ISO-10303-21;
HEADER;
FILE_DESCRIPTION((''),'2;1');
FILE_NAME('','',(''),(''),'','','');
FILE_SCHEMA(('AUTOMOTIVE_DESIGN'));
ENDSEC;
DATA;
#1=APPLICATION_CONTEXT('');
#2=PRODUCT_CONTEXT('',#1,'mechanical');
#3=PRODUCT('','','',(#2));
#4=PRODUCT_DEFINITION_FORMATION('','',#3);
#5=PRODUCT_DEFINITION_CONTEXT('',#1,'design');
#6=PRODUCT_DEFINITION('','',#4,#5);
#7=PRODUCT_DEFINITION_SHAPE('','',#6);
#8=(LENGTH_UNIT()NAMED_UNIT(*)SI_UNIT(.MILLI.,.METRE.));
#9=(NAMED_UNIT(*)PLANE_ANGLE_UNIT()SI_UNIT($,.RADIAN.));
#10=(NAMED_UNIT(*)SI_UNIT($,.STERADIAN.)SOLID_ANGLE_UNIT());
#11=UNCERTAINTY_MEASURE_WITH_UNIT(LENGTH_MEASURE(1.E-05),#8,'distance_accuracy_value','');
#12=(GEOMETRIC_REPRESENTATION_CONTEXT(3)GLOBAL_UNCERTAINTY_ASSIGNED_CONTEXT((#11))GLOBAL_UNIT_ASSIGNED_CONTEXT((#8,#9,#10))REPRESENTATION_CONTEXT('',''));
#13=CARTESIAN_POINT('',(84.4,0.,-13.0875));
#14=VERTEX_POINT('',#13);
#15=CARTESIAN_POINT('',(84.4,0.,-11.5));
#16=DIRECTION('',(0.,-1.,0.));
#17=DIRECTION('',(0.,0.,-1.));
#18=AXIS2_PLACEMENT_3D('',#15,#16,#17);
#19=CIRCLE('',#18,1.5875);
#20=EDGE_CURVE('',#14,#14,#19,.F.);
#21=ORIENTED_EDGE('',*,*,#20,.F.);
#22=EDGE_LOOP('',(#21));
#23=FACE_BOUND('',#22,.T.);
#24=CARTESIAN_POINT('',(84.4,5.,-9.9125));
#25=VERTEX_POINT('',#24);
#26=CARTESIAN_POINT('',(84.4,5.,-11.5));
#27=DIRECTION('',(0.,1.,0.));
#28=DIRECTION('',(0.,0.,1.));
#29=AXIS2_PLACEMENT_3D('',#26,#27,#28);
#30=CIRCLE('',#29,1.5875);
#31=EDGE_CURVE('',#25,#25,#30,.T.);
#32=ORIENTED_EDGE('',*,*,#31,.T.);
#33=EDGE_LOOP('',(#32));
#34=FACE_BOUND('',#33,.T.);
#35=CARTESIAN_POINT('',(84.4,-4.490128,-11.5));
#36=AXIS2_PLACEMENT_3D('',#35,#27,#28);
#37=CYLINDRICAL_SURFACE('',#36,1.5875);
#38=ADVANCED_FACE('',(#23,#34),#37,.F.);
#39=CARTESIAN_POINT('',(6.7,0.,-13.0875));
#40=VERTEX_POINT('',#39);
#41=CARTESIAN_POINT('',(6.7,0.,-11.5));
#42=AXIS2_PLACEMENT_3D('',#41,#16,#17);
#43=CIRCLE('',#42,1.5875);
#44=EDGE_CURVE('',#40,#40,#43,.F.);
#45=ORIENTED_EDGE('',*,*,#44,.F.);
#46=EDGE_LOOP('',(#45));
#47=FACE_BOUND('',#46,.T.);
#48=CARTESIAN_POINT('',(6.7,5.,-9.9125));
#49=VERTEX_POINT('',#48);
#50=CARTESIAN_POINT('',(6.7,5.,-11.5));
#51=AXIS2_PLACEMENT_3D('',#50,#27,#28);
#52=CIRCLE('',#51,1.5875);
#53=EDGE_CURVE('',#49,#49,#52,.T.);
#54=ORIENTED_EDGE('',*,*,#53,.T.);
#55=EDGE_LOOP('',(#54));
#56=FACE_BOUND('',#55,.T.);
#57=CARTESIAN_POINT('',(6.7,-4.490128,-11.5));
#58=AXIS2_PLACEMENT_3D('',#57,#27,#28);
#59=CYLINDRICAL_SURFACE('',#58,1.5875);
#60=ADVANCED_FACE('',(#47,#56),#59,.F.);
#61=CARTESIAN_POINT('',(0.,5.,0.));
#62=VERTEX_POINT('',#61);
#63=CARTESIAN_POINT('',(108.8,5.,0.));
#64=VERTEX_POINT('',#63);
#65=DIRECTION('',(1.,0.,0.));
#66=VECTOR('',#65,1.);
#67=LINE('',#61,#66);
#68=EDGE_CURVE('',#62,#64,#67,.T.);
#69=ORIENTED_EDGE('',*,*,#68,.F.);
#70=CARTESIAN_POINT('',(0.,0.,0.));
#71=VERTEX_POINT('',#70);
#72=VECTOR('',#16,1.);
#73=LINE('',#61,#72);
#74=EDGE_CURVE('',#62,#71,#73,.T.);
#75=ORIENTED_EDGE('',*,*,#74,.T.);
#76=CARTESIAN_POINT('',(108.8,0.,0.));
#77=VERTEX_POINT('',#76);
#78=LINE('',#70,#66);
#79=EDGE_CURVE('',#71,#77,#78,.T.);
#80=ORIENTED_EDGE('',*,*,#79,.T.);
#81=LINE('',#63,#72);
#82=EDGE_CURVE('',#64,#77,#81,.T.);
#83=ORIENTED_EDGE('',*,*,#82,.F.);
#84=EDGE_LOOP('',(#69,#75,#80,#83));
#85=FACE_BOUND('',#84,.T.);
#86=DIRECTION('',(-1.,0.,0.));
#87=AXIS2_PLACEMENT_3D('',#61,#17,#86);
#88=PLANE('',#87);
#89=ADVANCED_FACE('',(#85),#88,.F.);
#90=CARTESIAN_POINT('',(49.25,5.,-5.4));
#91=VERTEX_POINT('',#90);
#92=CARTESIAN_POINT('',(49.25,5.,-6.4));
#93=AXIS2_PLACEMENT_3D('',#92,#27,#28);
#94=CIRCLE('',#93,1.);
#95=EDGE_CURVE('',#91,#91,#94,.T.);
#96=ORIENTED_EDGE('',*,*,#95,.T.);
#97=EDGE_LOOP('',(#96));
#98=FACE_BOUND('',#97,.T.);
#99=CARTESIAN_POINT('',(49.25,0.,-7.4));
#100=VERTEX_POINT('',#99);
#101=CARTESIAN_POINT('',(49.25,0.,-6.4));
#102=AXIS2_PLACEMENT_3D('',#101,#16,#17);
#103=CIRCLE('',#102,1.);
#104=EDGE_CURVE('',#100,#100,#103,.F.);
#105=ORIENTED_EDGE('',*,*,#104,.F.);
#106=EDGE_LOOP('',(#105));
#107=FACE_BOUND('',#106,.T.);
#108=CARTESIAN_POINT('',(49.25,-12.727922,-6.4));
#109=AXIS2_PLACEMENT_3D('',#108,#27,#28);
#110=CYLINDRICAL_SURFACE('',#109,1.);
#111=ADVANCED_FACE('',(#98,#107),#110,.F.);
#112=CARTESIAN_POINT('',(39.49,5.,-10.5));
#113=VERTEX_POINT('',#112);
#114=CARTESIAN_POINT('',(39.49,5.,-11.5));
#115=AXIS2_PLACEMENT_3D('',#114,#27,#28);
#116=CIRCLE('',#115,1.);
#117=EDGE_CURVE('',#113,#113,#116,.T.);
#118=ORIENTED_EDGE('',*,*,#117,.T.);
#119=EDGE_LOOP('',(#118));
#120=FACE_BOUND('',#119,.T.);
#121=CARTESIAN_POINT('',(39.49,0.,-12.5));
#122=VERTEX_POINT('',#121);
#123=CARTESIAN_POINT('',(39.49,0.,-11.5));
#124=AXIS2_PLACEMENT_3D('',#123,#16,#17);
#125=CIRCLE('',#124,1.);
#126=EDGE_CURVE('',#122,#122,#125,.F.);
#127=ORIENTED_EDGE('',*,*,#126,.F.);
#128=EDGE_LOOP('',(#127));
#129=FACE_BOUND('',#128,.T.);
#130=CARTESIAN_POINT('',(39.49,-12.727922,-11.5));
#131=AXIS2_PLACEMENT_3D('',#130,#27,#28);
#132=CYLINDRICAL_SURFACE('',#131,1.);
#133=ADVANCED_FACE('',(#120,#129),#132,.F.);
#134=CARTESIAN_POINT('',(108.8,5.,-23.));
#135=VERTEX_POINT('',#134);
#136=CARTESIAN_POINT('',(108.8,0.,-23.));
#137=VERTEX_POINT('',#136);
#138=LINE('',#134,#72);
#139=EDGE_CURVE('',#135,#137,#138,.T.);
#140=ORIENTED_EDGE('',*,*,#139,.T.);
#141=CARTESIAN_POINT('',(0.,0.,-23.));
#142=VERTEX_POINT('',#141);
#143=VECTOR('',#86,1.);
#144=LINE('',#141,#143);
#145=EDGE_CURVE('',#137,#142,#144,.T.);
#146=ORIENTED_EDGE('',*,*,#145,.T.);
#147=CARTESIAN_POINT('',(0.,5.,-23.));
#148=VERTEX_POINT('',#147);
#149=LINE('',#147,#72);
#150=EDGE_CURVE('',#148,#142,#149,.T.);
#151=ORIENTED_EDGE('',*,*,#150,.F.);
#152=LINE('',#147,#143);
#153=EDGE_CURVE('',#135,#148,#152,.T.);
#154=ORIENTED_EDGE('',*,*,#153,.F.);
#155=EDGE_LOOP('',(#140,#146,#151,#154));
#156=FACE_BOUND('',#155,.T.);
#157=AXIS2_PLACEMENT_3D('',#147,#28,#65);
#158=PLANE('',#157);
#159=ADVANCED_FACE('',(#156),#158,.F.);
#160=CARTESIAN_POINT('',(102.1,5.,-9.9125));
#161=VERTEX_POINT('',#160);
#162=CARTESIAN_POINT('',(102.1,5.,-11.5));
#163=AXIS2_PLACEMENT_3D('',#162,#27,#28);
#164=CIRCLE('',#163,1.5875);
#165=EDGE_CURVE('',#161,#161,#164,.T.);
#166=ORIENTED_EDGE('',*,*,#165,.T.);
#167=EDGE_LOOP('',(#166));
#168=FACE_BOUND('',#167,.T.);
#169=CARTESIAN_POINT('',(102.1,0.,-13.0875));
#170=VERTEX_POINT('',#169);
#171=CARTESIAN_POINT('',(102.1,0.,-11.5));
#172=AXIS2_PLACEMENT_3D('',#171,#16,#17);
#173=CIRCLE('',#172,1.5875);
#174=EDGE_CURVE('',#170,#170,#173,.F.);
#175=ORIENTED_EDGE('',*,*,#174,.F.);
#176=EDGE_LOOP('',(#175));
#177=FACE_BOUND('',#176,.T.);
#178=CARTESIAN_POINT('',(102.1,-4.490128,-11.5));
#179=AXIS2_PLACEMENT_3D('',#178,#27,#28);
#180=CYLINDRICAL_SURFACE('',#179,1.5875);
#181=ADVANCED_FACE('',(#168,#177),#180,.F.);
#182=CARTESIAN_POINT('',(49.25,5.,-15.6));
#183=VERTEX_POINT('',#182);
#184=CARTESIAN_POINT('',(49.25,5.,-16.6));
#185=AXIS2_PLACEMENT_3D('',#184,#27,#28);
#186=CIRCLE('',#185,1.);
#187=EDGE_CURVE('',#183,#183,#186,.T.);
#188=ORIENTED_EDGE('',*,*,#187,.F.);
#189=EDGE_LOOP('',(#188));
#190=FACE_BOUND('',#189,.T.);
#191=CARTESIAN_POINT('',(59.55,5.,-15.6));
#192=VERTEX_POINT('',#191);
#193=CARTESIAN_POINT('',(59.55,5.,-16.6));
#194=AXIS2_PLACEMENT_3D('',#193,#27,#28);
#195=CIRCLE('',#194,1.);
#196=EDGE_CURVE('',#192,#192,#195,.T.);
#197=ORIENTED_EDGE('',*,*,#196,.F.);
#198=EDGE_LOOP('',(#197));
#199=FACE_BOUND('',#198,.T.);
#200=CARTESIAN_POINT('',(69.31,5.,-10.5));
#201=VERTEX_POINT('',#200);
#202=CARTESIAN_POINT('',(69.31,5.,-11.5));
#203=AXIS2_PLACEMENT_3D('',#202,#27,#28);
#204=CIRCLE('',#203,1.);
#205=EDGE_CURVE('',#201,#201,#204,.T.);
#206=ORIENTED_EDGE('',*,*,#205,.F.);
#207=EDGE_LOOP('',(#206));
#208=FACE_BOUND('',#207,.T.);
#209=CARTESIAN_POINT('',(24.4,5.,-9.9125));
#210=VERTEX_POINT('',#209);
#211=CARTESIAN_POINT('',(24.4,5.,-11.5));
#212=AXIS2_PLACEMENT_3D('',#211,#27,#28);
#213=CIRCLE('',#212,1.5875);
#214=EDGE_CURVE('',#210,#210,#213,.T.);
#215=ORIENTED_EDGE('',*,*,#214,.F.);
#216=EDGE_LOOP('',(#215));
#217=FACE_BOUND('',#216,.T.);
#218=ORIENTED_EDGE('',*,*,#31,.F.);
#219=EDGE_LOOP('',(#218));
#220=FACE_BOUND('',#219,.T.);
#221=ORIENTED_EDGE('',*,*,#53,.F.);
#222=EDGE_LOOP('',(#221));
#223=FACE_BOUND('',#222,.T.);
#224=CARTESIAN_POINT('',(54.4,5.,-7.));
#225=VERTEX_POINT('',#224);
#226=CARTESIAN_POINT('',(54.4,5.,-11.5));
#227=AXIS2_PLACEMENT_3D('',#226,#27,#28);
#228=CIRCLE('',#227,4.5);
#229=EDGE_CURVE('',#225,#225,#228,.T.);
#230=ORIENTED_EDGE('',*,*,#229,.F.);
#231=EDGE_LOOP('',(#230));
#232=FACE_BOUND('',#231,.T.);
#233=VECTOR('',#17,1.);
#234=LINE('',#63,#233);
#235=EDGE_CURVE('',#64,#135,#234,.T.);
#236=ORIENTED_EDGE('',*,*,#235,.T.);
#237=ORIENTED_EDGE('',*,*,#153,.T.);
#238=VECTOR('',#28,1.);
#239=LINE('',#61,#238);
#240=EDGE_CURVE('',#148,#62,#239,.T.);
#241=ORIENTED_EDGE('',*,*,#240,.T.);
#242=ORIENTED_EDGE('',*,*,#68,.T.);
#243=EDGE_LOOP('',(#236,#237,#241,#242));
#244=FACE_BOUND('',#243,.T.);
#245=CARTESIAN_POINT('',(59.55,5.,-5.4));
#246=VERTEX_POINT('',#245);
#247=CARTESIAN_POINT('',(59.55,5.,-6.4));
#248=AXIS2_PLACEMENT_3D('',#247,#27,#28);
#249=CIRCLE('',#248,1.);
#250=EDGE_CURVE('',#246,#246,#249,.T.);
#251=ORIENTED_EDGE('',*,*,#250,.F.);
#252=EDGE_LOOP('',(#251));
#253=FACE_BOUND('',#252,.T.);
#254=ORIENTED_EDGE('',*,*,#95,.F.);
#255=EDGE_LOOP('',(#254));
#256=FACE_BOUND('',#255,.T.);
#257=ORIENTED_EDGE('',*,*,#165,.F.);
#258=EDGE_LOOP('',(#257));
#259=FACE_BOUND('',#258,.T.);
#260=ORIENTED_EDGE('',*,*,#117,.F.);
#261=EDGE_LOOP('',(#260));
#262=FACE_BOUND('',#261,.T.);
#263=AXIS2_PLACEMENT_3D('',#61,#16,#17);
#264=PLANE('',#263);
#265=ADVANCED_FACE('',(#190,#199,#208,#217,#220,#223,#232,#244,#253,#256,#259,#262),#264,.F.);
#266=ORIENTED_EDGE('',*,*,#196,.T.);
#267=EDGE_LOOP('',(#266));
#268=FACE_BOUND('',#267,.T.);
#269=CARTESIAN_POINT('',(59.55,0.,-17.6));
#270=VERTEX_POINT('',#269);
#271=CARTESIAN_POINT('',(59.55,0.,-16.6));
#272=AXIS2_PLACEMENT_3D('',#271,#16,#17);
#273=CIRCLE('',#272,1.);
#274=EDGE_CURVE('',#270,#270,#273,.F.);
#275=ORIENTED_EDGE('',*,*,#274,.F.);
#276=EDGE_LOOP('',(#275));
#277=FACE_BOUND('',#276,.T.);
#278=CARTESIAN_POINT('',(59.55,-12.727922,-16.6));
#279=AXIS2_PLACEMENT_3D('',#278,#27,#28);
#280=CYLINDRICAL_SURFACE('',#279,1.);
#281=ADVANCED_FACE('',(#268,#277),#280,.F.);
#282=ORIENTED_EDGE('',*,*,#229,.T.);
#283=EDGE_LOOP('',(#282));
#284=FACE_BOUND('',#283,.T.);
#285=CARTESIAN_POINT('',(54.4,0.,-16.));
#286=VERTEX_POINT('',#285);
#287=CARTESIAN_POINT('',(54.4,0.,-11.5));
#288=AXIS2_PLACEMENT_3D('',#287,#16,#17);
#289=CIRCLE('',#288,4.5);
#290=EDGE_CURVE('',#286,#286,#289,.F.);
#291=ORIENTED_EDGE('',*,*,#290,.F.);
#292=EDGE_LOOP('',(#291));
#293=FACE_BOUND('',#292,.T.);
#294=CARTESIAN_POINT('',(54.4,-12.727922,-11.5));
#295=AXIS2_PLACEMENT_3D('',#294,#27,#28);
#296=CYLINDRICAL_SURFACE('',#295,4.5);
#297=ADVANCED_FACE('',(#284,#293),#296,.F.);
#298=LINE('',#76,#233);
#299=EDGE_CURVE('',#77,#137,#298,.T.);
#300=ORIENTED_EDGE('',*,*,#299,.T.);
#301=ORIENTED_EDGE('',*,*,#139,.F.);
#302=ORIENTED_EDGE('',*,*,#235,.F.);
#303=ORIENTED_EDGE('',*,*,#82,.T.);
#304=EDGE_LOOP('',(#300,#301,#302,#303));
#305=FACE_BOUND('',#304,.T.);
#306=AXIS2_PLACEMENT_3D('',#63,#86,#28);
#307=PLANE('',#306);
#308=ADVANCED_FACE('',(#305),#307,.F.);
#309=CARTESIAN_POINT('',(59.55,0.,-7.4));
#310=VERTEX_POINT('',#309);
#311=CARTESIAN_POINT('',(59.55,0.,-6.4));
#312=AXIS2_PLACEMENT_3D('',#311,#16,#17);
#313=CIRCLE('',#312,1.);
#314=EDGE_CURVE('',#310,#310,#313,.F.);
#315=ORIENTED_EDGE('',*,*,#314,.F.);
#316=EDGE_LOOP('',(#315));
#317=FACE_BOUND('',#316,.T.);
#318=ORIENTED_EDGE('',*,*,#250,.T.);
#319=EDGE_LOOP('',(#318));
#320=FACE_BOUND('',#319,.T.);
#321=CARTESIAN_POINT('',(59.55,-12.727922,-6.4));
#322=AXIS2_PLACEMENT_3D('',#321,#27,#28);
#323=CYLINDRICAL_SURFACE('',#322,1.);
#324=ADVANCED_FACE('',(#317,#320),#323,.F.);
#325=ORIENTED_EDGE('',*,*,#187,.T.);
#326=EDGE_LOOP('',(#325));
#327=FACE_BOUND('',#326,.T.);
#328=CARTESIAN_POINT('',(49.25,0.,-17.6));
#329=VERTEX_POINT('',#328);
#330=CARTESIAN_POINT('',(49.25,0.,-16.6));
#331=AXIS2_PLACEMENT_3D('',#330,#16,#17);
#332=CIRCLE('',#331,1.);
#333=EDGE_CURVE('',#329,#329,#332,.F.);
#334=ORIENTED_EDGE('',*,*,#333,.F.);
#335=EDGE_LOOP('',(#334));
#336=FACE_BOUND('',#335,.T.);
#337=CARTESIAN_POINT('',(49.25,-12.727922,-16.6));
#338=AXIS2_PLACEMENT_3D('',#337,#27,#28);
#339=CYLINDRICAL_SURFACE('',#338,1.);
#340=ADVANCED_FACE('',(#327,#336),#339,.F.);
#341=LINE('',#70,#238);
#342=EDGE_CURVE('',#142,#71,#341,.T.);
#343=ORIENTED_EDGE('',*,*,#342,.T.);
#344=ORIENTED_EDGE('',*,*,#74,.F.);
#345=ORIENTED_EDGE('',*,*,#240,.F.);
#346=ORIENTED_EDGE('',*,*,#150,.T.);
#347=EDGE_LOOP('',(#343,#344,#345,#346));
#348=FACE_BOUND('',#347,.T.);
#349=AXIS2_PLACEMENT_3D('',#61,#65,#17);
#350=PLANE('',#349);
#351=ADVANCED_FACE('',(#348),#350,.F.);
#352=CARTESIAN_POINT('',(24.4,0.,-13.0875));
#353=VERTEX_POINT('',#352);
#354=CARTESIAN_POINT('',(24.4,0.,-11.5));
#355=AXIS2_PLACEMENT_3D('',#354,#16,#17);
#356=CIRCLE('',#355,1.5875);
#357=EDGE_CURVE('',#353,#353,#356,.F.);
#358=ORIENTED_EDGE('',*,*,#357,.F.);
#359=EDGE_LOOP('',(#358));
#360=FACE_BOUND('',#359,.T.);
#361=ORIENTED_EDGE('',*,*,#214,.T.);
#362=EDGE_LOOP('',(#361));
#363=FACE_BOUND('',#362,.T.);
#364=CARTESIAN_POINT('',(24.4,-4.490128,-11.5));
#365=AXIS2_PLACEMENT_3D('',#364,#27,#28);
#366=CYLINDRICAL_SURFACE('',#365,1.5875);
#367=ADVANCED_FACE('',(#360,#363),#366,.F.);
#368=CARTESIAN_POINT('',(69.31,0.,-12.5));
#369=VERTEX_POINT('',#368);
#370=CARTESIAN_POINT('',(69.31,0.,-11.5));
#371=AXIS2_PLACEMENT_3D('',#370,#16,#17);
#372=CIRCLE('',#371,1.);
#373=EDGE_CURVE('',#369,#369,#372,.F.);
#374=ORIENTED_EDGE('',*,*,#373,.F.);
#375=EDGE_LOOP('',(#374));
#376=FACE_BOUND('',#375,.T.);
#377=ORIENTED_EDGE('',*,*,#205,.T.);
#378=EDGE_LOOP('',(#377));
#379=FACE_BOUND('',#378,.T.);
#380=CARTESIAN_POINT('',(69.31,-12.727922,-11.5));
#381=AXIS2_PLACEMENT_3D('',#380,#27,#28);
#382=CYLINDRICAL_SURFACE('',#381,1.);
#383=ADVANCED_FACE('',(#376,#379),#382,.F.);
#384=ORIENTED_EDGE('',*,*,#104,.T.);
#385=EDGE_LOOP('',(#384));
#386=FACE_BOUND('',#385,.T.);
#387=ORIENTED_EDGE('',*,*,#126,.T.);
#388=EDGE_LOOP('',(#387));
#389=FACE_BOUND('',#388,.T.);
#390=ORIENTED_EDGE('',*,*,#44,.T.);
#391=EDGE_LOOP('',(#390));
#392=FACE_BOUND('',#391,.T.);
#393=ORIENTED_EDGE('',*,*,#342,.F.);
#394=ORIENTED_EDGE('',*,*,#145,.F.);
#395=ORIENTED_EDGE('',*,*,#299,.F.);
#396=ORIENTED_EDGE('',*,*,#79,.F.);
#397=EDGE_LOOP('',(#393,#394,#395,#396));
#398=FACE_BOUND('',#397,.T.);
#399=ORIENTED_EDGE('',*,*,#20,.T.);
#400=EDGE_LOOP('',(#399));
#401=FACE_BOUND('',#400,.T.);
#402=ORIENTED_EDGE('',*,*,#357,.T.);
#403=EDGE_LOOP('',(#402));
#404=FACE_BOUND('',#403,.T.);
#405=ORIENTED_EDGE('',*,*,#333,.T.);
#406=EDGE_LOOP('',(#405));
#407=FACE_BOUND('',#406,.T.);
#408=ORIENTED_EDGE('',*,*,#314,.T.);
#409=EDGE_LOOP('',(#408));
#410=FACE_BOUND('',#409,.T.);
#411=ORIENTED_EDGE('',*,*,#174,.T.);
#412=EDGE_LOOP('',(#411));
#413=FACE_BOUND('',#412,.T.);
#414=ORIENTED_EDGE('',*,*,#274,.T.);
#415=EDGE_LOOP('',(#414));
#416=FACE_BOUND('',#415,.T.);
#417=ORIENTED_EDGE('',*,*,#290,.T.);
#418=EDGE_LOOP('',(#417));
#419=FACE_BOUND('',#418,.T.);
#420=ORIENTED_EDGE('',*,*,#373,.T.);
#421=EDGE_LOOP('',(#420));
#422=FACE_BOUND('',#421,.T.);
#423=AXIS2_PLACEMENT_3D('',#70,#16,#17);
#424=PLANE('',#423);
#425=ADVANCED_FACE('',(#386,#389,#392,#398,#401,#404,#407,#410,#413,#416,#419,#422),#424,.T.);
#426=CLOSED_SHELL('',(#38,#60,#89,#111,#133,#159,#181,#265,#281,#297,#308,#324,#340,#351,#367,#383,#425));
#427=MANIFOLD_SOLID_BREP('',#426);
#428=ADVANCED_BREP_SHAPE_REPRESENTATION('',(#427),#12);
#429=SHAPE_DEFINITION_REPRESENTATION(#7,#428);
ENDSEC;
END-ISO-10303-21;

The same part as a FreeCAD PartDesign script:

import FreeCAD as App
import Part
import Sketcher
from FreeCAD import Vector
Q = App.Units.Quantity

doc = App.newDocument("Part")
body = doc.addObject("PartDesign::Body", "Body")

sketch1 = body.newObject("Sketcher::SketchObject", "Sketch")
sketch1.AttachmentSupport = (doc.getObject("XZ_Plane"), [""])
sketch1.MapMode = "FlatFace"
sketch1.addGeometry(Part.LineSegment(Vector(0, -23, 0), Vector(0, 0, 0)), False)
sketch1.addGeometry(Part.LineSegment(Vector(0, 0, 0), Vector(109, 0, 0)), False)
sketch1.addGeometry(Part.LineSegment(Vector(109, 0, 0), Vector(109, -23, 0)), False)
sketch1.addGeometry(Part.LineSegment(Vector(109, -23, 0), Vector(0, -23, 0)), False)
sketch1.addConstraint(Sketcher.Constraint("Coincident", 0, 2, 1, 1))
sketch1.addConstraint(Sketcher.Constraint("Coincident", 1, 2, 2, 1))
sketch1.addConstraint(Sketcher.Constraint("Coincident", 2, 2, 3, 1))
sketch1.addConstraint(Sketcher.Constraint("Coincident", 3, 2, 0, 1))
sketch1.addConstraint(Sketcher.Constraint("Vertical", 0))
sketch1.addConstraint(Sketcher.Constraint("Horizontal", 1))
sketch1.addConstraint(Sketcher.Constraint("Vertical", 2))
sketch1.addConstraint(Sketcher.Constraint("Horizontal", 3))
sketch1.addConstraint(Sketcher.Constraint("Coincident", 0, 2, -1, 1))
sketch1.addConstraint(Sketcher.Constraint("DistanceY", 0, 1, 0, 2, Q("23 mm")))
sketch1.addConstraint(Sketcher.Constraint("DistanceX", 1, 1, 1, 2, Q("108.8 mm")))
pad1 = body.newObject("PartDesign::Pad", "Pad")
pad1.Profile = sketch1
pad1.Length = 5
pad1.Reversed = True

sketch2 = body.newObject("Sketcher::SketchObject", "Sketch001")
sketch2.AttachmentSupport = (doc.getObject("XZ_Plane"), [""])
sketch2.MapMode = "FlatFace"
sketch2.AttachmentOffset = App.Placement(Vector(0, 0, -5), App.Rotation())
sketch2.addGeometry(Part.Circle(Vector(59.5, -16.6, 0), Vector(0, 0, 1), 1), False)
sketch2.addGeometry(Part.Circle(Vector(59.5, -6.4, 0), Vector(0, 0, 1), 1), False)
sketch2.addGeometry(Part.Circle(Vector(49.2, -6.4, 0), Vector(0, 0, 1), 1), False)
sketch2.addGeometry(Part.Circle(Vector(49.2, -16.6, 0), Vector(0, 0, 1), 1), False)
sketch2.addGeometry(Part.Circle(Vector(69.3, -11.5, 0), Vector(0, 0, 1), 1), False)
sketch2.addGeometry(Part.Circle(Vector(39.5, -11.5, 0), Vector(0, 0, 1), 1), False)
sketch2.addGeometry(Part.Circle(Vector(54.4, -11.5, 0), Vector(0, 0, 1), 4.5), False)
sketch2.addConstraint(Sketcher.Constraint("Equal", 0, 1))
sketch2.addConstraint(Sketcher.Constraint("Equal", 1, 2))
sketch2.addConstraint(Sketcher.Constraint("Equal", 2, 3))
sketch2.addConstraint(Sketcher.Constraint("Equal", 3, 4))
sketch2.addConstraint(Sketcher.Constraint("Equal", 4, 5))
sketch2.addConstraint(Sketcher.Constraint("Horizontal", 1, 3, 2, 3))
sketch2.addConstraint(Sketcher.Constraint("Horizontal", 0, 3, 3, 3))
sketch2.addConstraint(Sketcher.Constraint("Horizontal", 4, 3, 5, 3))
sketch2.addConstraint(Sketcher.Constraint("Horizontal", 5, 3, 6, 3))
sketch2.addConstraint(Sketcher.Constraint("Vertical", 0, 3, 1, 3))
sketch2.addConstraint(Sketcher.Constraint("Vertical", 2, 3, 3, 3))
sketch2.addConstraint(Sketcher.Constraint("Diameter", 0, Q("2 mm")))
sketch2.addConstraint(Sketcher.Constraint("Diameter", 6, Q("9 mm")))
sketch2.addConstraint(Sketcher.Constraint("DistanceY", 0, 3, -1, 1, Q("16.6 mm")))
sketch2.addConstraint(Sketcher.Constraint("DistanceY", 1, 3, -1, 1, Q("6.4 mm")))
sketch2.addConstraint(Sketcher.Constraint("DistanceY", 4, 3, -1, 1, Q("11.5 mm")))
sketch2.addConstraint(Sketcher.Constraint("DistanceX", -1, 1, 6, 3, Q("54.4 mm")))
sketch2.addConstraint(Sketcher.Constraint("DistanceX", 2, 3, 1, 3, Q("10.3 mm")))
sketch2.addConstraint(Sketcher.Constraint("DistanceX", -1, 1, 0, 3, Q("59.55 mm")))
sketch2.addConstraint(Sketcher.Constraint("DistanceX", -1, 1, 4, 3, Q("69.31 mm")))
sketch2.addConstraint(Sketcher.Constraint("DistanceX", -1, 1, 5, 3, Q("39.49 mm")))
pocket1 = body.newObject("PartDesign::Pocket", "Pocket")
pocket1.Profile = sketch2
pocket1.Length = 5
pocket1.Reversed = True

sketch3 = body.newObject("Sketcher::SketchObject", "Sketch002")
sketch3.AttachmentSupport = (doc.getObject("XZ_Plane"), [""])
sketch3.MapMode = "FlatFace"
sketch3.AttachmentOffset = App.Placement(Vector(0, 0, -5), App.Rotation())
sketch3.addGeometry(Part.Circle(Vector(6.7, -11.5, 0), Vector(0, 0, 1), 1.6), False)
sketch3.addGeometry(Part.Circle(Vector(24.4, -11.5, 0), Vector(0, 0, 1), 1.6), False)
sketch3.addGeometry(Part.Circle(Vector(84.4, -11.5, 0), Vector(0, 0, 1), 1.6), False)
sketch3.addGeometry(Part.Circle(Vector(102.1, -11.5, 0), Vector(0, 0, 1), 1.6), False)
sketch3.addConstraint(Sketcher.Constraint("Equal", 0, 1))
sketch3.addConstraint(Sketcher.Constraint("Equal", 1, 2))
sketch3.addConstraint(Sketcher.Constraint("Equal", 2, 3))
sketch3.addConstraint(Sketcher.Constraint("Horizontal", 0, 3, 1, 3))
sketch3.addConstraint(Sketcher.Constraint("Horizontal", 1, 3, 2, 3))
sketch3.addConstraint(Sketcher.Constraint("Horizontal", 2, 3, 3, 3))
sketch3.addConstraint(Sketcher.Constraint("Diameter", 0, Q("3.175 mm")))
sketch3.addConstraint(Sketcher.Constraint("DistanceX", 1, 3, 2, 3, Q("60 mm")))
sketch3.addConstraint(Sketcher.Constraint("DistanceX", -1, 1, 0, 3, Q("6.7 mm")))
sketch3.addConstraint(Sketcher.Constraint("DistanceY", 0, 3, -1, 1, Q("11.5 mm")))
sketch3.addConstraint(Sketcher.Constraint("DistanceX", -1, 1, 1, 3, Q("24.4 mm")))
sketch3.addConstraint(Sketcher.Constraint("DistanceX", -1, 1, 3, 3, Q("102.1 mm")))
pocket2 = body.newObject("PartDesign::Pocket", "Pocket001")
pocket2.Profile = sketch3
pocket2.Length = 5
pocket2.Reversed = True

doc.recompute()
